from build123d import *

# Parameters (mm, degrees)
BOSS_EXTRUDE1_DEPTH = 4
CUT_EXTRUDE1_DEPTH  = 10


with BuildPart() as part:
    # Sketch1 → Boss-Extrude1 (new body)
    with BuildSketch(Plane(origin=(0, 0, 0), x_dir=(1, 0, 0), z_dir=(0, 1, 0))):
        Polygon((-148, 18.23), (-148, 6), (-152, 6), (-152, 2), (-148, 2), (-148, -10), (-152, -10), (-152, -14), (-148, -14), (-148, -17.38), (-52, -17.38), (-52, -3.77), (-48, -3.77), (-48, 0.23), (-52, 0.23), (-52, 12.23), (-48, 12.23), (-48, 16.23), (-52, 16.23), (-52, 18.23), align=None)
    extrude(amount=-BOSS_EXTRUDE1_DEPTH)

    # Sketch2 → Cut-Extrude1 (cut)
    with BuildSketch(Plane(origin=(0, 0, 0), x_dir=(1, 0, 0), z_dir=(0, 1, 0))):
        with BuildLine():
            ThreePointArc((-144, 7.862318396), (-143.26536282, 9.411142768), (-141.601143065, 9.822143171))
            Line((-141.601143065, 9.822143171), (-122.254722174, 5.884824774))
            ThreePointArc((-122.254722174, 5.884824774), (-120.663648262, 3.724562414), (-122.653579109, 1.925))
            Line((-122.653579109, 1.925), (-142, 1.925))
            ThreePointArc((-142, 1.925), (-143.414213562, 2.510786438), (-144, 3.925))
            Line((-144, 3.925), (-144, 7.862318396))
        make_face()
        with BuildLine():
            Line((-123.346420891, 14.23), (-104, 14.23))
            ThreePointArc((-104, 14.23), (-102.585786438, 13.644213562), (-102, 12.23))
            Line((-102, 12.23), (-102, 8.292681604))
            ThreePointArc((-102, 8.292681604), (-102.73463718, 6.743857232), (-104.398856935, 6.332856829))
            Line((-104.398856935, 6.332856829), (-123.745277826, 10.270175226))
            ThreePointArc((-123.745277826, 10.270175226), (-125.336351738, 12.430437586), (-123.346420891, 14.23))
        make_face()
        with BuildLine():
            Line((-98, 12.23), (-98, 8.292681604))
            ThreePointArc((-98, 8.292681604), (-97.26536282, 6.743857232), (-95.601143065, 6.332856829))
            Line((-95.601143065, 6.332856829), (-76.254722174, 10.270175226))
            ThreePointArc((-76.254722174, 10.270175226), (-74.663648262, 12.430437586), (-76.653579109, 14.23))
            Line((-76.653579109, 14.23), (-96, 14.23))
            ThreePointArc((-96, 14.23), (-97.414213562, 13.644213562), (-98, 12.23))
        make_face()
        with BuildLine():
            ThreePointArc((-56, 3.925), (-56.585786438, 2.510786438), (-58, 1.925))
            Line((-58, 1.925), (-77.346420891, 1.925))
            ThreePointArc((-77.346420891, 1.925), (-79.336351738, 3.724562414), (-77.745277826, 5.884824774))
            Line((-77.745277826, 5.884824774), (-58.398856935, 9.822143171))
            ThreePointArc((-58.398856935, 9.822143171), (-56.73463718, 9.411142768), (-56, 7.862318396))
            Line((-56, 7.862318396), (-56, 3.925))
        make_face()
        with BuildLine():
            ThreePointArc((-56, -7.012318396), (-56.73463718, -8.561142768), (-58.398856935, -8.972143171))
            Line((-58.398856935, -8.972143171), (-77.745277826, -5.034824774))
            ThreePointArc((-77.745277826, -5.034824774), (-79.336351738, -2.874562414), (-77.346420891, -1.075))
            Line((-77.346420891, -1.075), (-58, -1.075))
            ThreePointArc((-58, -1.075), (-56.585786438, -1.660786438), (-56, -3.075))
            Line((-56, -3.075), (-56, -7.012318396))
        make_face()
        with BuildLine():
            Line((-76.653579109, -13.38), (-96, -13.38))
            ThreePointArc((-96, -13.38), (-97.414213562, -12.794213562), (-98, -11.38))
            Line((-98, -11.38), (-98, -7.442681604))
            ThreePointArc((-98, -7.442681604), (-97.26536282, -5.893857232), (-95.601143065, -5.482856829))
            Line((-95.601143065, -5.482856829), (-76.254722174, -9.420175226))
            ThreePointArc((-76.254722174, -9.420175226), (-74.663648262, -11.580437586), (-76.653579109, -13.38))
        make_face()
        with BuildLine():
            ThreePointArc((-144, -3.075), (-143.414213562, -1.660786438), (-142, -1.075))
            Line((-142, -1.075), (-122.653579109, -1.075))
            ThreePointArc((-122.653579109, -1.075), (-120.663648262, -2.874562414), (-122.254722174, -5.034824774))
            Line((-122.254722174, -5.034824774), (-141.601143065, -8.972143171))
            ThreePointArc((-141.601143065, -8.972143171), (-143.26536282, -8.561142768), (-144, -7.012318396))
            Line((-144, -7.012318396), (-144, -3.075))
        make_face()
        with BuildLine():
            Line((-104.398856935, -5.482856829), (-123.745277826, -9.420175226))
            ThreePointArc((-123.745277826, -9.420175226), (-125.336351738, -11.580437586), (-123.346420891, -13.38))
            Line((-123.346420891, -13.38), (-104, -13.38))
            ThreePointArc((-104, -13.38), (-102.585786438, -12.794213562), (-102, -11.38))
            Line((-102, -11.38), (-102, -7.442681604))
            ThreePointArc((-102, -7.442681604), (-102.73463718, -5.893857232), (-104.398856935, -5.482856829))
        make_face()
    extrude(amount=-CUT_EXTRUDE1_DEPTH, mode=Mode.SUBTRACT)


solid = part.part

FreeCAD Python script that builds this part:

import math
import FreeCAD as App
import Part
import Sketcher
from FreeCAD import Vector

doc = App.newDocument("Part")
body = doc.addObject("PartDesign::Body", "Body")

# Sketch on XZ plane
sketch1 = body.newObject("Sketcher::SketchObject", "Sketch")
sketch1.AttachmentSupport = (doc.getObject("XZ_Plane"), [""])
sketch1.MapMode = "FlatFace"
sketch1.addGeometry([
    Part.LineSegment(Vector(-148, -18.2, 0), Vector(-148, -6, 0)),  # 0
    Part.LineSegment(Vector(-148, -6, 0), Vector(-152, -6, 0)),  # 1
    Part.LineSegment(Vector(-152, -6, 0), Vector(-152, -2, 0)),  # 2
    Part.LineSegment(Vector(-152, -2, 0), Vector(-148, -2, 0)),  # 3
    Part.LineSegment(Vector(-148, -2, 0), Vector(-148, 10, 0)),  # 4
    Part.LineSegment(Vector(-148, 10, 0), Vector(-152, 10, 0)),  # 5
    Part.LineSegment(Vector(-152, 10, 0), Vector(-152, 14, 0)),  # 6
    Part.LineSegment(Vector(-152, 14, 0), Vector(-148, 14, 0)),  # 7
    Part.LineSegment(Vector(-148, 14, 0), Vector(-148, 17.4, 0)),  # 8
    Part.LineSegment(Vector(-148, 17.4, 0), Vector(-52, 17.4, 0)),  # 9
    Part.LineSegment(Vector(-52, 17.4, 0), Vector(-52, 3.8, 0)),  # 10
    Part.LineSegment(Vector(-52, 3.8, 0), Vector(-48, 3.8, 0)),  # 11
    Part.LineSegment(Vector(-48, 3.8, 0), Vector(-48, -0.2, 0)),  # 12
    Part.LineSegment(Vector(-48, -0.2, 0), Vector(-52, -0.2, 0)),  # 13
    Part.LineSegment(Vector(-52, -0.2, 0), Vector(-52, -12.2, 0)),  # 14
    Part.LineSegment(Vector(-52, -12.2, 0), Vector(-48, -12.2, 0)),  # 15
    Part.LineSegment(Vector(-48, -12.2, 0), Vector(-48, -16.2, 0)),  # 16
    Part.LineSegment(Vector(-48, -16.2, 0), Vector(-52, -16.2, 0)),  # 17
    Part.LineSegment(Vector(-52, -16.2, 0), Vector(-52, -18.2, 0)),  # 18
    Part.LineSegment(Vector(-52, -18.2, 0), Vector(-148, -18.2, 0)),  # 19
], False)
sketch1.addConstraint([
    Sketcher.Constraint("Coincident", 0, 2, 1, 1),
    Sketcher.Constraint("Coincident", 1, 2, 2, 1),
    Sketcher.Constraint("Coincident", 2, 2, 3, 1),
    Sketcher.Constraint("Coincident", 3, 2, 4, 1),
    Sketcher.Constraint("Coincident", 4, 2, 5, 1),
    Sketcher.Constraint("Coincident", 5, 2, 6, 1),
    Sketcher.Constraint("Coincident", 6, 2, 7, 1),
    Sketcher.Constraint("Coincident", 7, 2, 8, 1),
    Sketcher.Constraint("Coincident", 8, 2, 9, 1),
    Sketcher.Constraint("Coincident", 9, 2, 10, 1),
    Sketcher.Constraint("Coincident", 10, 2, 11, 1),
    Sketcher.Constraint("Coincident", 11, 2, 12, 1),
    Sketcher.Constraint("Coincident", 12, 2, 13, 1),
    Sketcher.Constraint("Coincident", 13, 2, 14, 1),
    Sketcher.Constraint("Coincident", 14, 2, 15, 1),
    Sketcher.Constraint("Coincident", 15, 2, 16, 1),
    Sketcher.Constraint("Coincident", 16, 2, 17, 1),
    Sketcher.Constraint("Coincident", 17, 2, 18, 1),
    Sketcher.Constraint("Coincident", 18, 2, 19, 1),
    Sketcher.Constraint("Coincident", 19, 2, 0, 1),
    Sketcher.Constraint("Vertical", 0),
    Sketcher.Constraint("Horizontal", 1),
    Sketcher.Constraint("Vertical", 2),
    Sketcher.Constraint("Horizontal", 3),
    Sketcher.Constraint("Vertical", 4),
    Sketcher.Constraint("Horizontal", 5),
    Sketcher.Constraint("Vertical", 6),
    Sketcher.Constraint("Horizontal", 7),
    Sketcher.Constraint("Vertical", 8),
    Sketcher.Constraint("Horizontal", 9),
    Sketcher.Constraint("Vertical", 10),
    Sketcher.Constraint("Horizontal", 11),
    Sketcher.Constraint("Vertical", 12),
    Sketcher.Constraint("Horizontal", 13),
    Sketcher.Constraint("Vertical", 14),
    Sketcher.Constraint("Horizontal", 15),
    Sketcher.Constraint("Vertical", 16),
    Sketcher.Constraint("Horizontal", 17),
    Sketcher.Constraint("Vertical", 18),
    Sketcher.Constraint("Horizontal", 19),
    Sketcher.Constraint("Vertical", 0, 2, 3, 2),
    Sketcher.Constraint("Vertical", 2, 2, 5, 2),
    Sketcher.Constraint("Vertical", 4, 2, 7, 2),
    Sketcher.Constraint("Vertical", 10, 2, 13, 2),
    Sketcher.Constraint("Vertical", 12, 2, 15, 2),
    Sketcher.Constraint("Vertical", 14, 2, 17, 2),
    Sketcher.Constraint("Equal", 7, 11),
    Sketcher.Constraint("Equal", 17, 2),
    Sketcher.Constraint("Equal", 2, 6),
    Sketcher.Constraint("Equal", 6, 12),
    Sketcher.Constraint("Equal", 4, 14),
    Sketcher.Constraint("Equal", 12, 16),
    Sketcher.Constraint("DistanceX", 1, 2, 1, 1, 4.0),
    Sketcher.Constraint("DistanceX", 9, 1, 9, 2, 96.0),
    Sketcher.Constraint("DistanceY", 4, 1, 4, 2, 12.0),
    Sketcher.Constraint("DistanceY", 18, 2, 18, 1, 2.0),
    Sketcher.Constraint("DistanceX", 0, 2, -1, 1, 148.0),
    Sketcher.Constraint("DistanceY", 0, 2, -1, 1, 6.0),
    Sketcher.Constraint("DistanceY", 0, 1, 0, 2, 12.23),
    Sketcher.Constraint("DistanceY", 8, 1, 8, 2, 3.38),
])
pad1 = body.newObject("PartDesign::Pad", "Pad")
pad1.Profile = sketch1
pad1.Length = 4

# Sketch on XZ plane
sketch2 = body.newObject("Sketcher::SketchObject", "Sketch001")
sketch2.AttachmentSupport = (doc.getObject("XZ_Plane"), [""])
sketch2.MapMode = "FlatFace"
sketch2.addGeometry([
    Part.ArcOfCircle(Part.Circle(Vector(-142, -7.9, 0), Vector(0, 0, 1), 2), math.radians(180), math.radians(282)),  # 0
    Part.LineSegment(Vector(-144, -7.9, 0), Vector(-144, -3.9, 0)),  # 1
    Part.ArcOfCircle(Part.Circle(Vector(-142, -3.9, 0), Vector(0, 0, 1), 2), math.radians(90), math.radians(180)),  # 2
    Part.LineSegment(Vector(-142, -1.9, 0), Vector(-122.7, -1.9, 0)),  # 3
    Part.ArcOfCircle(Part.Circle(Vector(-122.7, -3.9, 0), Vector(0, 0, 1), 2), math.radians(-78), math.radians(90)),  # 4
    Part.LineSegment(Vector(-122.3, -5.9, 0), Vector(-141.6, -9.8, 0)),  # 5
    Part.LineSegment(Vector(-104, -14.2, 0), Vector(-123.3, -14.2, 0)),  # 6
    Part.ArcOfCircle(Part.Circle(Vector(-123.3, -12.2, 0), Vector(0, 0, 1), 2), math.radians(102), math.radians(270)),  # 7
    Part.LineSegment(Vector(-123.7, -10.3, 0), Vector(-104.4, -6.3, 0)),  # 8
    Part.ArcOfCircle(Part.Circle(Vector(-104, -8.3, 0), Vector(0, 0, 1), 2), math.radians(0), math.radians(102)),  # 9
    Part.LineSegment(Vector(-102, -8.3, 0), Vector(-102, -12.2, 0)),  # 10
    Part.ArcOfCircle(Part.Circle(Vector(-104, -12.2, 0), Vector(0, 0, 1), 2), math.radians(-90), math.radians(0)),  # 11
    Part.LineSegment(Vector(-98, -12.2, 0), Vector(-98, -8.3, 0)),  # 12
    Part.ArcOfCircle(Part.Circle(Vector(-96, -8.3, 0), Vector(0, 0, 1), 2), math.radians(78), math.radians(180)),  # 13
    Part.LineSegment(Vector(-95.6, -6.3, 0), Vector(-76.3, -10.3, 0)),  # 14
    Part.ArcOfCircle(Part.Circle(Vector(-76.7, -12.2, 0), Vector(0, 0, 1), 2), math.radians(-90), math.radians(78)),  # 15
    Part.LineSegment(Vector(-76.7, -14.2, 0), Vector(-96, -14.2, 0)),  # 16
    Part.ArcOfCircle(Part.Circle(Vector(-96, -12.2, 0), Vector(0, 0, 1), 2), math.radians(-180), math.radians(-90)),  # 17
    Part.ArcOfCircle(Part.Circle(Vector(-58, -3.9, 0), Vector(0, 0, 1), 2), math.radians(0), math.radians(90)),  # 18
    Part.LineSegment(Vector(-56, -3.9, 0), Vector(-56, -7.9, 0)),  # 19
    Part.ArcOfCircle(Part.Circle(Vector(-58, -7.9, 0), Vector(0, 0, 1), 2), math.radians(-102), math.radians(0)),  # 20
    Part.LineSegment(Vector(-58.4, -9.8, 0), Vector(-77.7, -5.9, 0)),  # 21
    Part.ArcOfCircle(Part.Circle(Vector(-77.3, -3.9, 0), Vector(0, 0, 1), 2), math.radians(90), math.radians(258)),  # 22
    Part.LineSegment(Vector(-77.3, -1.9, 0), Vector(-58, -1.9, 0)),  # 23
    Part.ArcOfCircle(Part.Circle(Vector(-58, 7, 0), Vector(0, 0, 1), 2), math.radians(0), math.radians(102)),  # 24
    Part.LineSegment(Vector(-56, 7, 0), Vector(-56, 3.1, 0)),  # 25
    Part.ArcOfCircle(Part.Circle(Vector(-58, 3.1, 0), Vector(0, 0, 1), 2), math.radians(-90), math.radians(0)),  # 26
    Part.LineSegment(Vector(-58, 1.1, 0), Vector(-77.3, 1.1, 0)),  # 27
    Part.ArcOfCircle(Part.Circle(Vector(-77.3, 3.1, 0), Vector(0, 0, 1), 2), math.radians(102), math.radians(270)),  # 28
    Part.LineSegment(Vector(-77.7, 5, 0), Vector(-58.4, 9, 0)),  # 29
    Part.LineSegment(Vector(-96, 13.4, 0), Vector(-76.7, 13.4, 0)),  # 30
    Part.ArcOfCircle(Part.Circle(Vector(-76.7, 11.4, 0), Vector(0, 0, 1), 2), math.radians(-78), math.radians(90)),  # 31
    Part.LineSegment(Vector(-76.3, 9.4, 0), Vector(-95.6, 5.5, 0)),  # 32
    Part.ArcOfCircle(Part.Circle(Vector(-96, 7.4, 0), Vector(0, 0, 1), 2), math.radians(180), math.radians(282)),  # 33
    Part.LineSegment(Vector(-98, 7.4, 0), Vector(-98, 11.4, 0)),  # 34
    Part.ArcOfCircle(Part.Circle(Vector(-96, 11.4, 0), Vector(0, 0, 1), 2), math.radians(90), math.radians(180)),  # 35
    Part.ArcOfCircle(Part.Circle(Vector(-142, 3.1, 0), Vector(0, 0, 1), 2), math.radians(-180), math.radians(-90)),  # 36
    Part.LineSegment(Vector(-144, 3.1, 0), Vector(-144, 7, 0)),  # 37
    Part.ArcOfCircle(Part.Circle(Vector(-142, 7, 0), Vector(0, 0, 1), 2), math.radians(78), math.radians(180)),  # 38
    Part.LineSegment(Vector(-141.6, 9, 0), Vector(-122.3, 5, 0)),  # 39
    Part.ArcOfCircle(Part.Circle(Vector(-122.7, 3.1, 0), Vector(0, 0, 1), 2), math.radians(-90), math.radians(78)),  # 40
    Part.LineSegment(Vector(-122.7, 1.1, 0), Vector(-142, 1.1, 0)),  # 41
    Part.LineSegment(Vector(-104.4, 5.5, 0), Vector(-123.7, 9.4, 0)),  # 42
    Part.ArcOfCircle(Part.Circle(Vector(-123.3, 11.4, 0), Vector(0, 0, 1), 2), math.radians(90), math.radians(258)),  # 43
    Part.LineSegment(Vector(-123.3, 13.4, 0), Vector(-104, 13.4, 0)),  # 44
    Part.ArcOfCircle(Part.Circle(Vector(-104, 11.4, 0), Vector(0, 0, 1), 2), math.radians(0), math.radians(90)),  # 45
    Part.LineSegment(Vector(-102, 11.4, 0), Vector(-102, 7.4, 0)),  # 46
    Part.ArcOfCircle(Part.Circle(Vector(-104, 7.4, 0), Vector(0, 0, 1), 2), math.radians(-102), math.radians(0)),  # 47
], False)
sketch2.addConstraint([
    Sketcher.Constraint("Tangent", 0, 1, 1, 1),
    Sketcher.Constraint("Tangent", 1, 2, 2, 2),
    Sketcher.Constraint("Tangent", 2, 1, 3, 1),
    Sketcher.Constraint("Tangent", 3, 2, 4, 2),
    Sketcher.Constraint("Tangent", 4, 1, 5, 1),
    Sketcher.Constraint("Tangent", 5, 2, 0, 2),
    Sketcher.Constraint("Tangent", 6, 2, 7, 2),
    Sketcher.Constraint("Tangent", 7, 1, 8, 1),
    Sketcher.Constraint("Tangent", 8, 2, 9, 2),
    Sketcher.Constraint("Tangent", 9, 1, 10, 1),
    Sketcher.Constraint("Tangent", 10, 2, 11, 2),
    Sketcher.Constraint("Tangent", 11, 1, 6, 1),
    Sketcher.Constraint("Tangent", 12, 2, 13, 2),
    Sketcher.Constraint("Tangent", 13, 1, 14, 1),
    Sketcher.Constraint("Tangent", 14, 2, 15, 2),
    Sketcher.Constraint("Tangent", 15, 1, 16, 1),
    Sketcher.Constraint("Tangent", 16, 2, 17, 2),
    Sketcher.Constraint("Tangent", 17, 1, 12, 1),
    Sketcher.Constraint("Tangent", 18, 1, 19, 1),
    Sketcher.Constraint("Tangent", 19, 2, 20, 2),
    Sketcher.Constraint("Tangent", 20, 1, 21, 1),
    Sketcher.Constraint("Tangent", 21, 2, 22, 2),
    Sketcher.Constraint("Tangent", 22, 1, 23, 1),
    Sketcher.Constraint("Tangent", 23, 2, 18, 2),
    Sketcher.Constraint("Tangent", 24, 1, 25, 1),
    Sketcher.Constraint("Tangent", 25, 2, 26, 2),
    Sketcher.Constraint("Tangent", 26, 1, 27, 1),
    Sketcher.Constraint("Tangent", 27, 2, 28, 2),
    Sketcher.Constraint("Tangent", 28, 1, 29, 1),
    Sketcher.Constraint("Tangent", 29, 2, 24, 2),
    Sketcher.Constraint("Tangent", 30, 2, 31, 2),
    Sketcher.Constraint("Tangent", 31, 1, 32, 1),
    Sketcher.Constraint("Tangent", 32, 2, 33, 2),
    Sketcher.Constraint("Tangent", 33, 1, 34, 1),
    Sketcher.Constraint("Tangent", 34, 2, 35, 2),
    Sketcher.Constraint("Tangent", 35, 1, 30, 1),
    Sketcher.Constraint("Tangent", 36, 1, 37, 1),
    Sketcher.Constraint("Tangent", 37, 2, 38, 2),
    Sketcher.Constraint("Tangent", 38, 1, 39, 1),
    Sketcher.Constraint("Tangent", 39, 2, 40, 2),
    Sketcher.Constraint("Tangent", 40, 1, 41, 1),
    Sketcher.Constraint("Tangent", 41, 2, 36, 2),
    Sketcher.Constraint("Tangent", 42, 2, 43, 2),
    Sketcher.Constraint("Tangent", 43, 1, 44, 1),
    Sketcher.Constraint("Tangent", 44, 2, 45, 2),
    Sketcher.Constraint("Tangent", 45, 1, 46, 1),
    Sketcher.Constraint("Tangent", 46, 2, 47, 2),
    Sketcher.Constraint("Tangent", 47, 1, 42, 1),
    Sketcher.Constraint("Vertical", 1),
    Sketcher.Constraint("Horizontal", 3),
    Sketcher.Constraint("Horizontal", 6),
    Sketcher.Constraint("Vertical", 10),
    Sketcher.Constraint("Vertical", 12),
    Sketcher.Constraint("Horizontal", 16),
    Sketcher.Constraint("Vertical", 19),
    Sketcher.Constraint("Horizontal", 23),
    Sketcher.Constraint("Vertical", 25),
    Sketcher.Constraint("Horizontal", 27),
    Sketcher.Constraint("Horizontal", 30),
    Sketcher.Constraint("Vertical", 34),
    Sketcher.Constraint("Vertical", 37),
    Sketcher.Constraint("Horizontal", 41),
    Sketcher.Constraint("Horizontal", 44),
    Sketcher.Constraint("Vertical", 46),
    Sketcher.Constraint("Equal", 0, 2),
    Sketcher.Constraint("Equal", 2, 4),
    Sketcher.Constraint("Equal", 4, 7),
    Sketcher.Constraint("Equal", 7, 9),
    Sketcher.Constraint("Equal", 9, 11),
    Sketcher.Constraint("Equal", 11, 13),
    Sketcher.Constraint("Equal", 13, 15),
    Sketcher.Constraint("Equal", 15, 17),
    Sketcher.Constraint("Equal", 17, 18),
    Sketcher.Constraint("Equal", 18, 20),
    Sketcher.Constraint("Equal", 20, 22),
    Sketcher.Constraint("Equal", 22, 24),
    Sketcher.Constraint("Equal", 24, 26),
    Sketcher.Constraint("Equal", 26, 28),
    Sketcher.Constraint("Equal", 28, 31),
    Sketcher.Constraint("Equal", 31, 33),
    Sketcher.Constraint("Equal", 33, 35),
    Sketcher.Constraint("Equal", 35, 36),
    Sketcher.Constraint("Equal", 36, 38),
    Sketcher.Constraint("Equal", 38, 40),
    Sketcher.Constraint("Equal", 40, 43),
    Sketcher.Constraint("Equal", 43, 45),
    Sketcher.Constraint("Equal", 45, 47),
    Sketcher.Constraint("Parallel", 5, 8),
    Sketcher.Constraint("Parallel", 14, 21),
    Sketcher.Constraint("Parallel", 8, 29),
    Sketcher.Constraint("Parallel", 29, 32),
    Sketcher.Constraint("Parallel", 21, 39),
    Sketcher.Constraint("Parallel", 39, 42),
    Sketcher.Constraint("Horizontal", 9, 3, 13, 3),
    Sketcher.Constraint("Horizontal", 11, 3, 15, 3),
    Sketcher.Constraint("Horizontal", 4, 3, 18, 3),
    Sketcher.Constraint("Horizontal", 0, 3, 20, 3),
    Sketcher.Constraint("Horizontal", 28, 3, 36, 3),
    Sketcher.Constraint("Horizontal", 24, 3, 38, 3),
    Sketcher.Constraint("Horizontal", 35, 3, 43, 3),
    Sketcher.Constraint("Horizontal", 33, 3, 47, 3),
    Sketcher.Constraint("Vertical", 20, 3, 24, 3),
    Sketcher.Constraint("Vertical", 22, 3, 28, 3),
    Sketcher.Constraint("Vertical", 15, 3, 31, 3),
    Sketcher.Constraint("Vertical", 17, 3, 33, 3),
    Sketcher.Constraint("Vertical", 2, 3, 36, 3),
    Sketcher.Constraint("Vertical", 4, 3, 40, 3),
    Sketcher.Constraint("Vertical", 7, 3, 43, 3),
    Sketcher.Constraint("Equal", 3, 6),
    Sketcher.Constraint("Radius", 0, 2.0),
    Sketcher.Constraint("DistanceX", 0, 3, -1, 1, 142.0),
    Sketcher.Constraint("DistanceX", 9, 3, -1, 1, 104.0),
    Sketcher.Constraint("DistanceX", 13, 3, -1, 1, 96.0),
    Sketcher.Constraint("DistanceX", 18, 3, -1, 1, 58.0),
    Sketcher.Constraint("DistanceY", 7, 3, -1, 1, 12.23),
    Sketcher.Constraint("DistanceY", -1, 1, 31, 3, 11.38),
    Sketcher.Constraint("DistanceY", 2, 3, -1, 1, 3.925),
    Sketcher.Constraint("DistanceY", -1, 1, 26, 3, 3.075),
    Sketcher.Constraint("DistanceX", 3, 1, 3, 2, 19.346421),
    Sketcher.Constraint("DistanceY", 1, 1, 1, 2, 3.937318),
])
pocket1 = body.newObject("PartDesign::Pocket", "Pocket")
pocket1.Profile = sketch2
pocket1.Length = 10
pocket1.Reversed = True

doc.recompute()
